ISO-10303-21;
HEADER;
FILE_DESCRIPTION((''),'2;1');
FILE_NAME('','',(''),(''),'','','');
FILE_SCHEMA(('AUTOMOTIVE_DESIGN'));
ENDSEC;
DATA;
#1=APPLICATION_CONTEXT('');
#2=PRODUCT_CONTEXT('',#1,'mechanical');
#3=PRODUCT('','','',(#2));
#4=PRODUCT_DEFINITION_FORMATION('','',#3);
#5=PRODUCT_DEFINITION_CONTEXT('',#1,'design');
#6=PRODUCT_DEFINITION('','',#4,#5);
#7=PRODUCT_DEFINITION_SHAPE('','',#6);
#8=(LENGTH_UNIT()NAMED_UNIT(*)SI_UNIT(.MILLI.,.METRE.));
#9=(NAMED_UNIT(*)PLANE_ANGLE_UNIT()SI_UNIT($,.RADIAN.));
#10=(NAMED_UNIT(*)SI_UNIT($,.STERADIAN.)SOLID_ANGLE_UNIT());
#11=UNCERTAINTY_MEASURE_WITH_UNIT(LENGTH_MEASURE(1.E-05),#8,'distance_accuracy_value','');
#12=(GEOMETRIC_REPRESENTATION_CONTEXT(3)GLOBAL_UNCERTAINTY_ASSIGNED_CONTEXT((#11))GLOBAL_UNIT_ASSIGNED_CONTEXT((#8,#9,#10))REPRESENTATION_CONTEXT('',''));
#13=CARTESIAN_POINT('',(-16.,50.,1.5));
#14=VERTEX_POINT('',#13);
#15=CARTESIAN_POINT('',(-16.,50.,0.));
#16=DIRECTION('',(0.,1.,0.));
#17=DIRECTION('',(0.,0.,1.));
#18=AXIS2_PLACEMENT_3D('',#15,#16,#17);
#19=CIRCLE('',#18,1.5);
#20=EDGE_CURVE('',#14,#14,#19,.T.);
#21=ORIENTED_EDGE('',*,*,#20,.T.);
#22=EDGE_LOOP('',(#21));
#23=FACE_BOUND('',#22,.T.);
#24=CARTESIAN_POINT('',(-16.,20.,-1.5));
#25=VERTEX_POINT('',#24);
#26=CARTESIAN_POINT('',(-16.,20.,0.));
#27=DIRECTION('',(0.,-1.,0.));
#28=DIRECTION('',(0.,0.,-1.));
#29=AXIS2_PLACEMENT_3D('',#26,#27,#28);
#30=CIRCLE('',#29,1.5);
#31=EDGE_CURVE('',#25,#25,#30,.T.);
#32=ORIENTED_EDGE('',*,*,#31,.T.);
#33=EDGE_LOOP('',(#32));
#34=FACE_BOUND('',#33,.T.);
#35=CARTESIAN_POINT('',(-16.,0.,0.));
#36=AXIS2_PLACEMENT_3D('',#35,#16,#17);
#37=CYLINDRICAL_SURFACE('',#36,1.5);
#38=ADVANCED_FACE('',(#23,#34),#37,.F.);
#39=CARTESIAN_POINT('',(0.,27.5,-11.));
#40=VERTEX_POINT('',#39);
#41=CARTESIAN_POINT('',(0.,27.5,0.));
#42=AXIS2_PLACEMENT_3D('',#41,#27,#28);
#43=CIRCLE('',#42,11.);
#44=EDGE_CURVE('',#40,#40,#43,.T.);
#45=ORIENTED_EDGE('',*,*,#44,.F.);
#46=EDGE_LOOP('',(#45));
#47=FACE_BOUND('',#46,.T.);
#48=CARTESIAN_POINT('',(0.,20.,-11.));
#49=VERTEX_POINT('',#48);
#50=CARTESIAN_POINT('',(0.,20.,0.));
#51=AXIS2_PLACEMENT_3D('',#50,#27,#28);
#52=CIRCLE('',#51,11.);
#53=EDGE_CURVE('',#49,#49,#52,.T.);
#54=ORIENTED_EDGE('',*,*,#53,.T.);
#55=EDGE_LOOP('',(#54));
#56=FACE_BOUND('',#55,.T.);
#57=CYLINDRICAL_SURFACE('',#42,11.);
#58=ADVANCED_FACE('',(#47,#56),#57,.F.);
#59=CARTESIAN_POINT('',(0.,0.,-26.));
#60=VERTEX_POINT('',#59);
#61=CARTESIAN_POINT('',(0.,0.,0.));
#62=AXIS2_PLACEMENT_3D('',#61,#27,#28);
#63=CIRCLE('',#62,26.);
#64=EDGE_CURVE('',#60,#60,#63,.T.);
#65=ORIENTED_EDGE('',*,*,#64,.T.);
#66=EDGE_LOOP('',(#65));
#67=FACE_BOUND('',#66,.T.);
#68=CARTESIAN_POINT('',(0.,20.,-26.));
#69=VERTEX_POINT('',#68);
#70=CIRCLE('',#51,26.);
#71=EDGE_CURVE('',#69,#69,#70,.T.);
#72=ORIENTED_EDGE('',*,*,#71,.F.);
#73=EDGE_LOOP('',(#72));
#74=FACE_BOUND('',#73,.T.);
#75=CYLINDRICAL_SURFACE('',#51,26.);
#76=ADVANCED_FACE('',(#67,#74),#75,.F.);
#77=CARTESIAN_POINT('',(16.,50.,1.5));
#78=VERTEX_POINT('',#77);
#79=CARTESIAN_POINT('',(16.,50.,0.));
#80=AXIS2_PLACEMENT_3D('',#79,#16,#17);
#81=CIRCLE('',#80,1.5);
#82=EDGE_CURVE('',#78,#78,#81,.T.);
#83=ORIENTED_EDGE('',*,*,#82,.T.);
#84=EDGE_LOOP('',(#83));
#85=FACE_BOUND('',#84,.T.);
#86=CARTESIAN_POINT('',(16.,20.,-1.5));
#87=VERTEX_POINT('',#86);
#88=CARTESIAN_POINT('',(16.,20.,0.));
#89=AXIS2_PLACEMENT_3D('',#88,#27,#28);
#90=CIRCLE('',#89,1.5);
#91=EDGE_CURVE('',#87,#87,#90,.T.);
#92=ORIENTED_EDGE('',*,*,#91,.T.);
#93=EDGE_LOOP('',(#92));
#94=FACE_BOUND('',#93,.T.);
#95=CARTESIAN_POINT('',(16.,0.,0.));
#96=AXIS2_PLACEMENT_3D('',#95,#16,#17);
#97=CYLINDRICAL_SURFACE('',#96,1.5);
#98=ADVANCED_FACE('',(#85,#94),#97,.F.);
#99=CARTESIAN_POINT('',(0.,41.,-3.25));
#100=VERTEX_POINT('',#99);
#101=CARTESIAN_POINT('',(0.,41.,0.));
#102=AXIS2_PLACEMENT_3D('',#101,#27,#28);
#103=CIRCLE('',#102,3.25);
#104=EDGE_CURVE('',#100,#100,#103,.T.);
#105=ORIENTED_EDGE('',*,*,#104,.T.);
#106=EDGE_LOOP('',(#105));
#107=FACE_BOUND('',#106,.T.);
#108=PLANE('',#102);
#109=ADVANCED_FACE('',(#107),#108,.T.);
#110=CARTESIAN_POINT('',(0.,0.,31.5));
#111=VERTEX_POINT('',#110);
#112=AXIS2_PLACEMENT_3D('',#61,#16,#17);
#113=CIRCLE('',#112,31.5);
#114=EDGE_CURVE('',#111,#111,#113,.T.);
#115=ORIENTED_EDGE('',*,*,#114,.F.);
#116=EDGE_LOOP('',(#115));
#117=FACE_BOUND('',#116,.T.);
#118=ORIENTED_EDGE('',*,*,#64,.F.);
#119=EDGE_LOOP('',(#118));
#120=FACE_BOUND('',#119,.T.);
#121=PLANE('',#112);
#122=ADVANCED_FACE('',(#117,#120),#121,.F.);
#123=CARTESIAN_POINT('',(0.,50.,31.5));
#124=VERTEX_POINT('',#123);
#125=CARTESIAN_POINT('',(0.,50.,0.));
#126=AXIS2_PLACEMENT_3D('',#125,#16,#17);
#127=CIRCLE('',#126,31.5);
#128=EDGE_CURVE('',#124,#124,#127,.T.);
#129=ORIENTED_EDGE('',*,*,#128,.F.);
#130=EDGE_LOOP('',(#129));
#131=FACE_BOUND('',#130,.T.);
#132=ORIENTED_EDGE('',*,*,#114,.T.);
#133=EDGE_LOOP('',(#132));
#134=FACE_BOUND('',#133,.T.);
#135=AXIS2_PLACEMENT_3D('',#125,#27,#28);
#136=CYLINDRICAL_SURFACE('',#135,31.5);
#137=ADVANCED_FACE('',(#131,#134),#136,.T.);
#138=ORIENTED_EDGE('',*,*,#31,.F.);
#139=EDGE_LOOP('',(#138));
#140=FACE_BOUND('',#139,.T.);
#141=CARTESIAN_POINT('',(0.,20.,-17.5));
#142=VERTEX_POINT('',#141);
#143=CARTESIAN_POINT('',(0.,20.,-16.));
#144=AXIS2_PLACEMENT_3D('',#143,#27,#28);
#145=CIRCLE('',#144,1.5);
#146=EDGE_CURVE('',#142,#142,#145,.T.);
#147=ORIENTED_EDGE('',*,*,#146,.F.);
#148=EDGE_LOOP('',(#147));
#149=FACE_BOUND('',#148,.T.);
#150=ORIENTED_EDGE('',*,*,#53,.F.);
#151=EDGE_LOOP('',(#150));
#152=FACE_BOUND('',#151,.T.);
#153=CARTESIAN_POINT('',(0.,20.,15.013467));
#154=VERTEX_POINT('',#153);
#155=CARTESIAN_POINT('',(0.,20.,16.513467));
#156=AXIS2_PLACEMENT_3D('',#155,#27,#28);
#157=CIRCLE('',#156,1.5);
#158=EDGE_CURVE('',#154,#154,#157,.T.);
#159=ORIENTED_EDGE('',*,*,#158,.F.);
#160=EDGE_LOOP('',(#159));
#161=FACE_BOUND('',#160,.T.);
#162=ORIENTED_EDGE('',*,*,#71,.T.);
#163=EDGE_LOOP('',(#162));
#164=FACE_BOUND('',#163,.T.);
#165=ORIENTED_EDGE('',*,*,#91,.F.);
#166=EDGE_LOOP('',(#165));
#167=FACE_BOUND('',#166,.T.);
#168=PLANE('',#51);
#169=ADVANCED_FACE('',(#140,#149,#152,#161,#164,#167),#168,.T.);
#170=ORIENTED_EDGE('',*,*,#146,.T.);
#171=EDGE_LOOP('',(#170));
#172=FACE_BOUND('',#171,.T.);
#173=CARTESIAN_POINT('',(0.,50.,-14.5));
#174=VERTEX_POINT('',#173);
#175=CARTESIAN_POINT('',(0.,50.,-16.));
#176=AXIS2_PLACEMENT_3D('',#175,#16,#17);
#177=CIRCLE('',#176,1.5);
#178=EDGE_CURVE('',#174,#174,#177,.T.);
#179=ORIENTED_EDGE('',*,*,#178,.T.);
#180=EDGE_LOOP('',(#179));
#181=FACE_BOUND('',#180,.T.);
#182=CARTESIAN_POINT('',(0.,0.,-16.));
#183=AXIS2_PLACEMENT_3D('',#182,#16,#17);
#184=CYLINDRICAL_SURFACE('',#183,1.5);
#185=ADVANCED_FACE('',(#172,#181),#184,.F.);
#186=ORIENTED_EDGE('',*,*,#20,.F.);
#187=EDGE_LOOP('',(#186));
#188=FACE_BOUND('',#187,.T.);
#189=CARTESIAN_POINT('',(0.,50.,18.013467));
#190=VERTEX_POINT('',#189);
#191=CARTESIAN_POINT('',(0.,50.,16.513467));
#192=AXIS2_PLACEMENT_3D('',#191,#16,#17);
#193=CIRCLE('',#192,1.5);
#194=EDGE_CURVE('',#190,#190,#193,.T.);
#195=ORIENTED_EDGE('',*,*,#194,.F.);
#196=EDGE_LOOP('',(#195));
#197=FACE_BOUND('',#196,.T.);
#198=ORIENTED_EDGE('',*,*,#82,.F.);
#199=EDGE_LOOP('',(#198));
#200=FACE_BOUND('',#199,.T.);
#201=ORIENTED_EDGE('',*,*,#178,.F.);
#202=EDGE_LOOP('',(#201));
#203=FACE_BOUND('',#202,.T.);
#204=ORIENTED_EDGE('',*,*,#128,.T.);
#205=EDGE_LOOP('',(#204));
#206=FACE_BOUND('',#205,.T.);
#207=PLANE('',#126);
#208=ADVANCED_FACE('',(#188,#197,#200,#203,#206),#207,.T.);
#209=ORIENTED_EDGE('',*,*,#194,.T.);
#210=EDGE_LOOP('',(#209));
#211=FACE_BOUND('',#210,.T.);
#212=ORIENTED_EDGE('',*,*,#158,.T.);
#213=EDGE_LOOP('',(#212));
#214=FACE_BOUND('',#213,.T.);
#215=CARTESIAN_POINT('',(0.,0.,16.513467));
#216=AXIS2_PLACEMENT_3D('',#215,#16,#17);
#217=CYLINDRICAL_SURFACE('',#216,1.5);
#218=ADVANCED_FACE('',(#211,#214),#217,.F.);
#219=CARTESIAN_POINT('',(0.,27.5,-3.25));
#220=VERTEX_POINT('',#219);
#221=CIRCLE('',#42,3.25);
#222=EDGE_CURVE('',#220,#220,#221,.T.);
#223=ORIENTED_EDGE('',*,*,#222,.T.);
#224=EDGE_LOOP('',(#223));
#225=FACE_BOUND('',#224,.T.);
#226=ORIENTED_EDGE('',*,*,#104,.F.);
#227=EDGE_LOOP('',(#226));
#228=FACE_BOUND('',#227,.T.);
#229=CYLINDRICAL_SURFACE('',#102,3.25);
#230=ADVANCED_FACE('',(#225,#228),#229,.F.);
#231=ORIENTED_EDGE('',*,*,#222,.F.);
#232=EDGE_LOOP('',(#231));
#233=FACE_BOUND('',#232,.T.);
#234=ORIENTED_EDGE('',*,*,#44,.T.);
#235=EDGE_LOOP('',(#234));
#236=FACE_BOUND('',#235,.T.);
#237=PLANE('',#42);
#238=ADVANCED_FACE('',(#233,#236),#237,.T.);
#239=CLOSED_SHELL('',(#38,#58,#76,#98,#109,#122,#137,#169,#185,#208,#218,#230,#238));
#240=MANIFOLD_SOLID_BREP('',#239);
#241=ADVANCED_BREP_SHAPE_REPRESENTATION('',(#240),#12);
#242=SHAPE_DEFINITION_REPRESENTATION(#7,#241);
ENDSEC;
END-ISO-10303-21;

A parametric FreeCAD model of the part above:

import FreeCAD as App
import Part
import Sketcher

V = App.Vector

doc = App.newDocument("Part")
body = doc.addObject("PartDesign::Body", "Body")

# Sketch on XZ plane
sketch1 = body.newObject("Sketcher::SketchObject", "Sketch")
sketch1.AttachmentSupport = (doc.getObject("XZ_Plane"), [""])
sketch1.MapMode = "FlatFace"
sketch1.addGeometry(Part.Circle(V(0, 0, 0), V(0, 0, 1), 31.5), False)
sketch1.addConstraint([
    Sketcher.Constraint("Coincident", 0, 3, -1, 1),
    Sketcher.Constraint("Diameter", 0, 63.0),
])
pad1 = body.newObject("PartDesign::Pad", "Pad")
pad1.Profile = sketch1
pad1.Length = 50
pad1.Reversed = True

# Sketch on XZ plane
sketch2 = body.newObject("Sketcher::SketchObject", "Sketch001")
sketch2.AttachmentSupport = (doc.getObject("XZ_Plane"), [""])
sketch2.MapMode = "FlatFace"
sketch2.addGeometry(Part.Circle(V(0, 0, 0), V(0, 0, 1), 26), False)
sketch2.addConstraint([
    Sketcher.Constraint("Coincident", 0, 3, -1, 1),
    Sketcher.Constraint("Diameter", 0, 52.0),
])
pocket1 = body.newObject("PartDesign::Pocket", "Pocket")
pocket1.Profile = sketch2
pocket1.Length = 20

# Sketch on XZ plane
sketch3 = body.newObject("Sketcher::SketchObject", "Sketch002")
sketch3.AttachmentSupport = (doc.getObject("XZ_Plane"), [""])
sketch3.MapMode = "FlatFace"
sketch3.AttachmentOffset = App.Placement(V(0, 0, -20), App.Rotation())
sketch3.addGeometry(Part.Circle(V(0, 0, 0), V(0, 0, 1), 11), False)
sketch3.addConstraint([
    Sketcher.Constraint("Coincident", 0, 3, -1, 1),
    Sketcher.Constraint("Diameter", 0, 22.0),
])
pocket2 = body.newObject("PartDesign::Pocket", "Pocket001")
pocket2.Profile = sketch3
pocket2.Length = 7.5

# Sketch on XZ plane
sketch4 = body.newObject("Sketcher::SketchObject", "Sketch003")
sketch4.AttachmentSupport = (doc.getObject("XZ_Plane"), [""])
sketch4.MapMode = "FlatFace"
sketch4.AttachmentOffset = App.Placement(V(0, 0, -27.5), App.Rotation())
sketch4.addGeometry(Part.Circle(V(0, 0, 0), V(0, 0, 1), 3.25), False)
sketch4.addConstraint([
    Sketcher.Constraint("Coincident", 0, 3, -1, 1),
    Sketcher.Constraint("Diameter", 0, 6.5),
])
pocket3 = body.newObject("PartDesign::Pocket", "Pocket002")
pocket3.Profile = sketch4
pocket3.Length = 13.5

# Sketch on XZ plane
sketch5 = body.newObject("Sketcher::SketchObject", "Sketch004")
sketch5.AttachmentSupport = (doc.getObject("XZ_Plane"), [""])
sketch5.MapMode = "FlatFace"
sketch5.AttachmentOffset = App.Placement(V(0, 0, -50), App.Rotation())
sketch5.addGeometry([
    Part.Circle(V(-16, 0, 0), V(0, 0, 1), 1.5),
    Part.Circle(V(0, -16, 0), V(0, 0, 1), 1.5),
    Part.Circle(V(16, 0, 0), V(0, 0, 1), 1.5),
    Part.Circle(V(0, 16.513467, 0), V(0, 0, 1), 1.5),
], False)
sketch5.addConstraint([
    Sketcher.Constraint("Equal", 0, 1),
    Sketcher.Constraint("Equal", 1, 2),
    Sketcher.Constraint("Equal", 2, 3),
    Sketcher.Constraint("Symmetric", 0, 3, 2, 3, -1, 1),
    Sketcher.Constraint("PointOnObject", 0, 3, -1),
    Sketcher.Constraint("PointOnObject", 1, 3, -2),
    Sketcher.Constraint("PointOnObject", 3, 3, -2),
    Sketcher.Constraint("Diameter", 0, 3.0),
    Sketcher.Constraint("DistanceX", 0, 3, -1, 1, 16.0),
    Sketcher.Constraint("DistanceY", 1, 3, -1, 1, 16.0),
    Sketcher.Constraint("DistanceY", -1, 1, 3, 3, 16.513467),
])
pocket4 = body.newObject("PartDesign::Pocket", "Pocket003")
pocket4.Profile = sketch5
pocket4.Type = "ThroughAll"
pocket4.Reversed = True

doc.recompute()
